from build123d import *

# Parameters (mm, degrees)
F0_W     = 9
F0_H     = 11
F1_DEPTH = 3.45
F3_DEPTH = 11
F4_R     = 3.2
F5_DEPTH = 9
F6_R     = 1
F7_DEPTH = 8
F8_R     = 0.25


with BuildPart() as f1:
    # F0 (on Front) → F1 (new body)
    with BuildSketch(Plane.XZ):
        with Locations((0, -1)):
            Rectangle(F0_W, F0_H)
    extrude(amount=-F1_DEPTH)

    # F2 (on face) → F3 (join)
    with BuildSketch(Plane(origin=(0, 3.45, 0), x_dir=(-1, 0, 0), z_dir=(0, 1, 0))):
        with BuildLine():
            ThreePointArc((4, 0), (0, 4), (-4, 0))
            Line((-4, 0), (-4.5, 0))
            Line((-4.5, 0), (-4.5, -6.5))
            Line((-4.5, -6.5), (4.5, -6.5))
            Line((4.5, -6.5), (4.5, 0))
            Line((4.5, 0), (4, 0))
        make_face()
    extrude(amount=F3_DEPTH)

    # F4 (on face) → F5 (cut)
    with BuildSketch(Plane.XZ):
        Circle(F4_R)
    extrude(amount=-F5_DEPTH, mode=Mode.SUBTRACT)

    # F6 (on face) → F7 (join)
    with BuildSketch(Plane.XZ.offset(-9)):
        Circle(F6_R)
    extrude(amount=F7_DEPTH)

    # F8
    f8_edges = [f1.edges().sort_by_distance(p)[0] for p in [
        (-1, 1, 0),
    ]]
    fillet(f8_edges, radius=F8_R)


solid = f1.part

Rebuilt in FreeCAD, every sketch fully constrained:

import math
import FreeCAD as App
import Part
import Sketcher
from FreeCAD import Vector
Q = App.Units.Quantity


def edges_at(feature, points):
    """Names of the edges that pass closest to the given points."""
    edges = feature.Shape.Edges
    near = lambda p: min(range(len(edges)), key=lambda i: edges[i].distToShape(Part.Vertex(*p))[0])
    return sorted({f"Edge{near(p) + 1}" for p in points})


def add_polygon(sketch, points):
    """Adds a closed chain of lines whose ends are joined by coincident constraints."""
    first, n = sketch.GeometryCount, len(points)
    for a, b in zip(points, points[1:] + points[:1]):
        sketch.addGeometry(Part.LineSegment(App.Vector(*a, 0), App.Vector(*b, 0)), False)
    for i in range(n):
        sketch.addConstraint(Sketcher.Constraint("Coincident", first + i, 2, first + (i + 1) % n, 1))

doc = App.newDocument("Part")
params = doc.addObject("Spreadsheet::Sheet", "Params")
for row, (alias, value) in enumerate([
    ("sketch1_width", "9 mm"),
    ("sketch1_height", "11 mm"),
    ("pad1_length", "3.45 mm"),
    ("sketch2_radius", "4 mm"),
    ("sketch2_width", "9 mm"),
    ("sketch2_height", "6.5 mm"),
    ("pad2_length", "11 mm"),
    ("sketch3_diameter", "6.4 mm"),
    ("pocket1_length", "9 mm"),
    ("sketch4_diameter", "2 mm"),
    ("pad3_length", "8 mm"),
    ("fillet_radius", "0.25 mm"),
], start=1):
    params.set(f"A{row}", alias)
    params.set(f"B{row}", "=" + value)
    params.setAlias(f"B{row}", alias)

body = doc.addObject("PartDesign::Body", "Body")

# Sketch on XZ plane
sketch1 = body.newObject("Sketcher::SketchObject", "Sketch")
sketch1.AttachmentSupport = (doc.getObject("XZ_Plane"), [""])
sketch1.MapMode = "FlatFace"
add_polygon(sketch1, [(-4, 4), (-4, -6), (4, -6), (4, 4)])  # lines 0-3
sketch1.addConstraint([
    Sketcher.Constraint("Vertical", 0),
    Sketcher.Constraint("Horizontal", 1),
    Sketcher.Constraint("Vertical", 2),
    Sketcher.Constraint("Horizontal", 3),
    Sketcher.Constraint("DistanceX", 1, 1, 1, 2, Q("9 mm")),
    Sketcher.Constraint("DistanceY", 0, 2, 0, 1, Q("11 mm")),
    Sketcher.Constraint("DistanceX", 0, 2, -1, 1, Q("4.5 mm")),
    Sketcher.Constraint("DistanceY", 0, 2, -1, 1, Q("6.5 mm")),
])
sketch1.setExpression("Constraints[8]", "Params.sketch1_width")
sketch1.setExpression("Constraints[9]", "Params.sketch1_height")
pad1 = body.newObject("PartDesign::Pad", "Pad")
pad1.Profile = sketch1
pad1.setExpression("Length", "Params.pad1_length")
pad1.Reversed = True

# Sketch on XZ plane
sketch2 = body.newObject("Sketcher::SketchObject", "Sketch001")
sketch2.AttachmentSupport = (doc.getObject("XZ_Plane"), [""])
sketch2.MapMode = "FlatFace"
sketch2.AttachmentOffset = App.Placement(Vector(0, 0, -3.45), App.Rotation())
sketch2.addGeometry([
    Part.ArcOfCircle(Part.Circle(Vector(0, 0, 0), Vector(0, 0, 1), 4), math.radians(0), math.radians(180)),  # 0
    Part.LineSegment(Vector(4, 0, 0), Vector(4.5, 0, 0)),  # 1
    Part.LineSegment(Vector(4.5, 0, 0), Vector(4.5, -6.5, 0)),  # 2
    Part.LineSegment(Vector(4.5, -6.5, 0), Vector(-4.5, -6.5, 0)),  # 3
    Part.LineSegment(Vector(-4.5, -6.5, 0), Vector(-4.5, 0, 0)),  # 4
    Part.LineSegment(Vector(-4.5, 0, 0), Vector(-4, 0, 0)),  # 5
], False)
sketch2.addConstraint([
    Sketcher.Constraint("Coincident", 0, 1, 1, 1),
    Sketcher.Constraint("Coincident", 1, 2, 2, 1),
    Sketcher.Constraint("Coincident", 2, 2, 3, 1),
    Sketcher.Constraint("Coincident", 3, 2, 4, 1),
    Sketcher.Constraint("Coincident", 4, 2, 5, 1),
    Sketcher.Constraint("Coincident", 5, 2, 0, 2),
    Sketcher.Constraint("Horizontal", 1),
    Sketcher.Constraint("Vertical", 2),
    Sketcher.Constraint("Horizontal", 3),
    Sketcher.Constraint("Vertical", 4),
    Sketcher.Constraint("Horizontal", 5),
    Sketcher.Constraint("Coincident", 0, 3, -1, 1),
    Sketcher.Constraint("Symmetric", 1, 2, 4, 2, -1, 1),
    Sketcher.Constraint("PointOnObject", 0, 1, -1),
    Sketcher.Constraint("Radius", 0, Q("4 mm")),
    Sketcher.Constraint("DistanceX", 3, 2, 3, 1, Q("9 mm")),
    Sketcher.Constraint("DistanceY", 2, 2, 2, 1, Q("6.5 mm")),
])
sketch2.setExpression("Constraints[14]", "Params.sketch2_radius")
sketch2.setExpression("Constraints[15]", "Params.sketch2_width")
sketch2.setExpression("Constraints[16]", "Params.sketch2_height")
pad2 = body.newObject("PartDesign::Pad", "Pad001")
pad2.Profile = sketch2
pad2.setExpression("Length", "Params.pad2_length")
pad2.Reversed = True

# Sketch on XZ plane
sketch3 = body.newObject("Sketcher::SketchObject", "Sketch002")
sketch3.AttachmentSupport = (doc.getObject("XZ_Plane"), [""])
sketch3.MapMode = "FlatFace"
sketch3.addGeometry(Part.Circle(Vector(0, 0, 0), Vector(0, 0, 1), 3.2), False)
sketch3.addConstraint([
    Sketcher.Constraint("Coincident", 0, 3, -1, 1),
    Sketcher.Constraint("Diameter", 0, Q("6.4 mm")),
])
sketch3.setExpression("Constraints[1]", "Params.sketch3_diameter")
pocket1 = body.newObject("PartDesign::Pocket", "Pocket")
pocket1.Profile = sketch3
pocket1.setExpression("Length", "Params.pocket1_length")

# Sketch on XZ plane
sketch4 = body.newObject("Sketcher::SketchObject", "Sketch003")
sketch4.AttachmentSupport = (doc.getObject("XZ_Plane"), [""])
sketch4.MapMode = "FlatFace"
sketch4.AttachmentOffset = App.Placement(Vector(0, 0, -9), App.Rotation())
sketch4.addGeometry(Part.Circle(Vector(0, 0, 0), Vector(0, 0, 1), 1), False)
sketch4.addConstraint([
    Sketcher.Constraint("Coincident", 0, 3, -1, 1),
    Sketcher.Constraint("Diameter", 0, Q("2 mm")),
])
sketch4.setExpression("Constraints[1]", "Params.sketch4_diameter")
pad3 = body.newObject("PartDesign::Pad", "Pad002")
pad3.Profile = sketch4
pad3.setExpression("Length", "Params.pad3_length")
doc.recompute()

fillet = body.newObject("PartDesign::Fillet", "Fillet")
fillet.Base = (pad3, edges_at(pad3, [(-1, 1, 0)]))
fillet.setExpression("Radius", "Params.fillet_radius")

doc.recompute()
